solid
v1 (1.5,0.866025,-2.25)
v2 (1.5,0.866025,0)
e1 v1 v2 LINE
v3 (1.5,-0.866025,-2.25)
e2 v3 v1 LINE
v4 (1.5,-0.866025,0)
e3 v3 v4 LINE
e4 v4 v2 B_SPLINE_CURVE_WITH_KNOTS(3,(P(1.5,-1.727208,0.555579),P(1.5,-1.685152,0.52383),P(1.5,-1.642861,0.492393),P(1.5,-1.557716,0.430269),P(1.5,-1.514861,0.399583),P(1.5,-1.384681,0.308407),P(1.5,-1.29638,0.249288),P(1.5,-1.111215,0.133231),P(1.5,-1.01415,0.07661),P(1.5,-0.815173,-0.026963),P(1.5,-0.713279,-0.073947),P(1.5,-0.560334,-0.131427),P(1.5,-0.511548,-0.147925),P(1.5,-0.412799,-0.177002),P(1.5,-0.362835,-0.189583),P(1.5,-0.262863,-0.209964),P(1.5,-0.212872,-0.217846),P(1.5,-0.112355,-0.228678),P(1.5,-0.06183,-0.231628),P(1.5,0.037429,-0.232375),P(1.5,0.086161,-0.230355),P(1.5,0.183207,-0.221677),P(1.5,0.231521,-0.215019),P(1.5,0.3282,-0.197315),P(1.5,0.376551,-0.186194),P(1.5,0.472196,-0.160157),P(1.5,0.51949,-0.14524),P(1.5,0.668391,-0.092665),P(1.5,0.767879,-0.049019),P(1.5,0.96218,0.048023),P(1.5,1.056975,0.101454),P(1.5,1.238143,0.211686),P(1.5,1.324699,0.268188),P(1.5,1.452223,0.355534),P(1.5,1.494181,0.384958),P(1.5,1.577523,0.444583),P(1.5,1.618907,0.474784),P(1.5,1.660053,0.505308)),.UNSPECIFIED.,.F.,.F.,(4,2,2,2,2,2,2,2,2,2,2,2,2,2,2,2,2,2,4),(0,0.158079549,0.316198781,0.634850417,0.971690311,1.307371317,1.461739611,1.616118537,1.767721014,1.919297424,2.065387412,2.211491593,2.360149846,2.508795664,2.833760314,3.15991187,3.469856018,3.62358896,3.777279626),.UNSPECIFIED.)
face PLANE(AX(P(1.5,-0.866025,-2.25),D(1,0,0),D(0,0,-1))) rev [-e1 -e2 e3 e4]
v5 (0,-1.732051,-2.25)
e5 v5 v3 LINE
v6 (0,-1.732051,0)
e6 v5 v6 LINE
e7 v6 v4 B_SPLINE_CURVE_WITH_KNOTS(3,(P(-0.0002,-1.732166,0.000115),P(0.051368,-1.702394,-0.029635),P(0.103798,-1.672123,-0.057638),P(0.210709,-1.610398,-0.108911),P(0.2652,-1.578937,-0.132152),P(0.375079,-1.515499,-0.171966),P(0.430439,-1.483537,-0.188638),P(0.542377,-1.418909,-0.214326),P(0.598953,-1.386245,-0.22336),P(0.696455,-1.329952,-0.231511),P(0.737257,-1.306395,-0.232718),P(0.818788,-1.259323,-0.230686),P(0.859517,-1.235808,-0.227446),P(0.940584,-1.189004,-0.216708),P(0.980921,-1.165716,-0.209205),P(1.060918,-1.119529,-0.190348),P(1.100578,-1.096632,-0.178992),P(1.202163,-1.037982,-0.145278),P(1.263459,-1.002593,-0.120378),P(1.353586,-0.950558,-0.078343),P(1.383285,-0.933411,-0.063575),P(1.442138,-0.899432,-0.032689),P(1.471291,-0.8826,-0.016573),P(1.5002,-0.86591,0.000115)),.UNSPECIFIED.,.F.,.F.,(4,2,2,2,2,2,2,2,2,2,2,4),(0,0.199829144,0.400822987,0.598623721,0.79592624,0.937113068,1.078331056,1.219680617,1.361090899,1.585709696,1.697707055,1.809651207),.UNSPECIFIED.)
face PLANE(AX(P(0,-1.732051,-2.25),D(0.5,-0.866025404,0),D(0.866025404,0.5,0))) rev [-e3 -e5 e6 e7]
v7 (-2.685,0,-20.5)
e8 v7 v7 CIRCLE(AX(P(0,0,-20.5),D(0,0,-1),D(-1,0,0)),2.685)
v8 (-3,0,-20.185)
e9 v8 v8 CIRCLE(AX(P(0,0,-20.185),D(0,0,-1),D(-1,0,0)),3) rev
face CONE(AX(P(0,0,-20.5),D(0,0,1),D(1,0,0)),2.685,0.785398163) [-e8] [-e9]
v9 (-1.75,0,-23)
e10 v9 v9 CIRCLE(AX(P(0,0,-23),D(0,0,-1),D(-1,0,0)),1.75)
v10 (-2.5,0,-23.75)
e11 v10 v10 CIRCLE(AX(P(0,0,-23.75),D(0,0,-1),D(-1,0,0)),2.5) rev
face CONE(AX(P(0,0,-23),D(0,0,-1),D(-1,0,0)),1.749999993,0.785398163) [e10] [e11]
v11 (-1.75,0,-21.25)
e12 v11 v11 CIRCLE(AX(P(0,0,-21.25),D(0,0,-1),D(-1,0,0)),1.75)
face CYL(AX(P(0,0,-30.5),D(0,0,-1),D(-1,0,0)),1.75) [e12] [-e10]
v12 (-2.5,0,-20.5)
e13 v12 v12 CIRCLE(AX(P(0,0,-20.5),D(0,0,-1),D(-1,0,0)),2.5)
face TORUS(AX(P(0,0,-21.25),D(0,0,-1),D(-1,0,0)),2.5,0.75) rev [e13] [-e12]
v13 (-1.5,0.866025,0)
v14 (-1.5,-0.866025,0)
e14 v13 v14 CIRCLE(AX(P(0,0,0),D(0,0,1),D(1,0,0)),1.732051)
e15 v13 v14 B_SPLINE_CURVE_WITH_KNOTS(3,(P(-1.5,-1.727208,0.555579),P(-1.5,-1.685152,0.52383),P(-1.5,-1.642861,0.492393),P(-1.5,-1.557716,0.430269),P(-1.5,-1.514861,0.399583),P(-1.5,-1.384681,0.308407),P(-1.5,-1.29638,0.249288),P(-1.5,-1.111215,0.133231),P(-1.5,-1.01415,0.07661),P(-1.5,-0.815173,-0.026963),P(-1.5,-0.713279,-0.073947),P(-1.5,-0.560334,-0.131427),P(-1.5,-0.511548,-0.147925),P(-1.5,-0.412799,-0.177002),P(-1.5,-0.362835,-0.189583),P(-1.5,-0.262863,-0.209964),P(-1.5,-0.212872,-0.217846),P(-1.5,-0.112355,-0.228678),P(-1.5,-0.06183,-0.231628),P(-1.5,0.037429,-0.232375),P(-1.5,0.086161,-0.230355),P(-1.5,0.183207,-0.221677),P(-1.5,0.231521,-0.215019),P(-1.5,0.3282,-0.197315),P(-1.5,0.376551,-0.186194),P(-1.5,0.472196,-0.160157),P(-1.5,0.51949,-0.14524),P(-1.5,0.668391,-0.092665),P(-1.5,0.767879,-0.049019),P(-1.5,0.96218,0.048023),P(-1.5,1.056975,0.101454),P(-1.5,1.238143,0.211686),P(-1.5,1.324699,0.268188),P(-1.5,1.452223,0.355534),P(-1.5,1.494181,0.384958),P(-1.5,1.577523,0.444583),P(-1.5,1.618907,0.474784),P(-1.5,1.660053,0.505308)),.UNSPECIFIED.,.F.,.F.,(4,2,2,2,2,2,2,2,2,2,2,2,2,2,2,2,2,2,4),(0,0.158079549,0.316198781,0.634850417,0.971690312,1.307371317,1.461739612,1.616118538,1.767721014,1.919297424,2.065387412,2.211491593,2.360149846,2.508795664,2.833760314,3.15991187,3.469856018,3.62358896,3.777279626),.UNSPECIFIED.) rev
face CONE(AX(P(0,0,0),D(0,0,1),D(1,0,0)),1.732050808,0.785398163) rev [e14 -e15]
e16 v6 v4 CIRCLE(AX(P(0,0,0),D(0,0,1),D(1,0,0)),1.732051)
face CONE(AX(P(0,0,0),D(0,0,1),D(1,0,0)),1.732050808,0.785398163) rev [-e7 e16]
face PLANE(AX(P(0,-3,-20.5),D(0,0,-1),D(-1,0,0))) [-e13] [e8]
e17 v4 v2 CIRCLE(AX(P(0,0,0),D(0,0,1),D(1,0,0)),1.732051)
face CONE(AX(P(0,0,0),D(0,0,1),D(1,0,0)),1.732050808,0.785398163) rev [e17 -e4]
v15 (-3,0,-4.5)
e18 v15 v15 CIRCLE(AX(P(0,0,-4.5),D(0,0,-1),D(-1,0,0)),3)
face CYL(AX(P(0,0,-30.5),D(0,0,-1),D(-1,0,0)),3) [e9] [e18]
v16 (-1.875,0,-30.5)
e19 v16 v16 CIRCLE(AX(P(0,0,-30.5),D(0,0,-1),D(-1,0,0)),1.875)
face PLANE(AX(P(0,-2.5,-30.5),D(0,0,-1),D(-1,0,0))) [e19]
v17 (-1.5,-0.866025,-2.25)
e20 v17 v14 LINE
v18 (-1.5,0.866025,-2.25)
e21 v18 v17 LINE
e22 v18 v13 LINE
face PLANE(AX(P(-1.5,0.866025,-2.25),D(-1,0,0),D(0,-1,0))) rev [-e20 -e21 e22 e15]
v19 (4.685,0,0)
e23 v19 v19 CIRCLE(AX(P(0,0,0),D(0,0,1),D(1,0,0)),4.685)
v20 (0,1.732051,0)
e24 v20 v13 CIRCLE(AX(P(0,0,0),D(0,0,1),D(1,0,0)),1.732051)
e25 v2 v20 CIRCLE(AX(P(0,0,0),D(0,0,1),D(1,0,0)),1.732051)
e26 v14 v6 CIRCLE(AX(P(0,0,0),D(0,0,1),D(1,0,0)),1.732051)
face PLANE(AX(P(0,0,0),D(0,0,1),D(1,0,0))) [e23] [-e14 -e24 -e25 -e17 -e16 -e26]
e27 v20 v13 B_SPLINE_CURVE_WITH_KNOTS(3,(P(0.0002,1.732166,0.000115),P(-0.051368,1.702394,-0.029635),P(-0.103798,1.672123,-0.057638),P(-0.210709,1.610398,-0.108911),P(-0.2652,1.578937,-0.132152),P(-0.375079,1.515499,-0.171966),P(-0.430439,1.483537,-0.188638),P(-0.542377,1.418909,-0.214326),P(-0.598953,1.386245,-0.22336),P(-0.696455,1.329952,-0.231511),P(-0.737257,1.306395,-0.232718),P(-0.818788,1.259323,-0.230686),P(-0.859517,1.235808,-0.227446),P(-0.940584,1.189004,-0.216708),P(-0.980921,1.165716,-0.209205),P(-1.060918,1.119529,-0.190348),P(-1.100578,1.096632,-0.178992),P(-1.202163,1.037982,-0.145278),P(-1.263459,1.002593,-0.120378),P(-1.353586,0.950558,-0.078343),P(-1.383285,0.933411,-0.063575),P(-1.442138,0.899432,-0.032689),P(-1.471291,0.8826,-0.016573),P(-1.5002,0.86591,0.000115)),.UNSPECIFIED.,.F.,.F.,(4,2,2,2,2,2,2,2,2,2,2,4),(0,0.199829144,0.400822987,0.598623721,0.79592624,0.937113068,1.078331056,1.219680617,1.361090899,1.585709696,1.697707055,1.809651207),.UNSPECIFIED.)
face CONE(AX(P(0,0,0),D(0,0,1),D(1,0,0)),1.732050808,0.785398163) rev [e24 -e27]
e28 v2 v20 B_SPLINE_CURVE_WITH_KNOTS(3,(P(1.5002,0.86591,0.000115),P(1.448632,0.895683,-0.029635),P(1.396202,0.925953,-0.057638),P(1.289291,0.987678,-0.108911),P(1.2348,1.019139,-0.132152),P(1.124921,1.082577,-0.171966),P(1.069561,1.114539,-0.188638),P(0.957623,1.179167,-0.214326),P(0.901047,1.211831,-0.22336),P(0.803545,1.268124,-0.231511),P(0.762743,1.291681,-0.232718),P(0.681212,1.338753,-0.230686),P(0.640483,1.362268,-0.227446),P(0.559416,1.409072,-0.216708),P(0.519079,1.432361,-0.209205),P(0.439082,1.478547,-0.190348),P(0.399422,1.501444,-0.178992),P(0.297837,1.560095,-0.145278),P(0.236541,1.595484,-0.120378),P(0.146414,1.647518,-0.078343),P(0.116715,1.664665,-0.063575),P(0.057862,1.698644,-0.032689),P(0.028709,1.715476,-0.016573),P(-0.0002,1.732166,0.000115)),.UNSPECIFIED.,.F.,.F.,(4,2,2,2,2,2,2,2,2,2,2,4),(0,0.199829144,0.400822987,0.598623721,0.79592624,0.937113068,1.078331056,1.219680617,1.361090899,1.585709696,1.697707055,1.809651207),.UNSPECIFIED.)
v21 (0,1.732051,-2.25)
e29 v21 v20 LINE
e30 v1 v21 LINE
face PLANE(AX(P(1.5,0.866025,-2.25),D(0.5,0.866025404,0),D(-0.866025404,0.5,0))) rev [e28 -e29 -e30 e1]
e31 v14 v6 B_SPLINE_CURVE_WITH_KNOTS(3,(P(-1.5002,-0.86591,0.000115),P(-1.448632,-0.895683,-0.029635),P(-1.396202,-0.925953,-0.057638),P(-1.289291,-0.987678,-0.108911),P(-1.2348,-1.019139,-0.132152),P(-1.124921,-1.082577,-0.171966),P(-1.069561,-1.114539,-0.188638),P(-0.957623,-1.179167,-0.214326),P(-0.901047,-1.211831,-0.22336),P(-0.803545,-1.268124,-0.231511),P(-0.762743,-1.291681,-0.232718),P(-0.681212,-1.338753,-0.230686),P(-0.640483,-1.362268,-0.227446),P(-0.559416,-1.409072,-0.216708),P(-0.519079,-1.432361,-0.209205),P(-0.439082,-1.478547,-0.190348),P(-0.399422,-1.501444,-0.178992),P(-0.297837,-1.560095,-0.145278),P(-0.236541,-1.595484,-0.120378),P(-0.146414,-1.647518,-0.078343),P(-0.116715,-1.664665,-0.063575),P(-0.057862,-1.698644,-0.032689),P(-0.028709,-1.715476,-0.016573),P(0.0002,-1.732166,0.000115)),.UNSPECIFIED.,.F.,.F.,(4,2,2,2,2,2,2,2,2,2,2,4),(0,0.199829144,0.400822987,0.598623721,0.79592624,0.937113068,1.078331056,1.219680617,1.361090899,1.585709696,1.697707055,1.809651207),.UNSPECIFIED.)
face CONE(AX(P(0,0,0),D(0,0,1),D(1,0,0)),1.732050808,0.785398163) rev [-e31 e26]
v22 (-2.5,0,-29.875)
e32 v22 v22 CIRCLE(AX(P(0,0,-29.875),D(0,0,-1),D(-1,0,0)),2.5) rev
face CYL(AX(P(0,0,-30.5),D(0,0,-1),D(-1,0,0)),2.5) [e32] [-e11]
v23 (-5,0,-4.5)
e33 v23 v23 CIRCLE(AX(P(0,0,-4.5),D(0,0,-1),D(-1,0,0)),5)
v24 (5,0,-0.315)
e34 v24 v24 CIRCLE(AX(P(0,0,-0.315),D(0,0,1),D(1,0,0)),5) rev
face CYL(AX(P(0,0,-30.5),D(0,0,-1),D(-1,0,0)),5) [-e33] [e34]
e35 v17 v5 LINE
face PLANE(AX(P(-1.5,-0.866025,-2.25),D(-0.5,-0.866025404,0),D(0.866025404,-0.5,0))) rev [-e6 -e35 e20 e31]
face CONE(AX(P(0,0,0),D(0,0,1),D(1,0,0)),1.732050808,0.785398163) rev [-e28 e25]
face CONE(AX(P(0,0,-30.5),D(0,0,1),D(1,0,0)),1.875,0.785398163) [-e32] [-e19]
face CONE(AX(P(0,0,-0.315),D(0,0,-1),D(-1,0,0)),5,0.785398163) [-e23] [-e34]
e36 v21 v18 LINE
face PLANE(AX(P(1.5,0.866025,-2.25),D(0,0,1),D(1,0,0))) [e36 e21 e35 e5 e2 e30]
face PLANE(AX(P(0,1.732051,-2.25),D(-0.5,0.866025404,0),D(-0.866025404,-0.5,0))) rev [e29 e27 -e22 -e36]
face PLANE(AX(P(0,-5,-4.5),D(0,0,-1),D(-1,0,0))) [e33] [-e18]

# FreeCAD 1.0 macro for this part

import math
import FreeCAD as App
import Part
import Sketcher
Q = App.Units.Quantity


def edges_at(feature, points):
    """Names of the edges that pass closest to the given points."""
    edges = feature.Shape.Edges
    near = lambda p: min(range(len(edges)), key=lambda i: edges[i].distToShape(Part.Vertex(*p))[0])
    return sorted({f"Edge{near(p) + 1}" for p in points})

doc = App.newDocument("Part")
body = doc.addObject("PartDesign::Body", "Body")

# Sketch on YZ plane
sketch1 = body.newObject("Sketcher::SketchObject", "Sketch")
sketch1.AttachmentSupport = (doc.getObject("YZ_Plane"), [""])
sketch1.MapMode = "FlatFace"
sketch1.addGeometry([
    Part.LineSegment(App.Vector(5, -4.5, 0), App.Vector(5, 0, 0)),  # 0
    Part.LineSegment(App.Vector(5, 0, 0), App.Vector(0, 0, 0)),  # 1
    Part.LineSegment(App.Vector(0, 0, 0), App.Vector(0, -30.5, 0)),  # 2
    Part.LineSegment(App.Vector(0, -30.5, 0), App.Vector(2.5, -30.5, 0)),  # 3
    Part.LineSegment(App.Vector(2.5, -30.5, 0), App.Vector(2.5, -20.5, 0)),  # 4
    Part.LineSegment(App.Vector(2.5, -20.5, 0), App.Vector(3, -20.5, 0)),  # 5
    Part.LineSegment(App.Vector(3, -20.5, 0), App.Vector(3, -4.5, 0)),  # 6
    Part.LineSegment(App.Vector(3, -4.5, 0), App.Vector(5, -4.5, 0)),  # 7
], False)
sketch1.addConstraint([
    Sketcher.Constraint("Coincident", 0, 2, 1, 1),
    Sketcher.Constraint("Coincident", 1, 2, 2, 1),
    Sketcher.Constraint("Coincident", 2, 2, 3, 1),
    Sketcher.Constraint("Coincident", 3, 2, 4, 1),
    Sketcher.Constraint("Coincident", 4, 2, 5, 1),
    Sketcher.Constraint("Coincident", 5, 2, 6, 1),
    Sketcher.Constraint("Coincident", 6, 2, 7, 1),
    Sketcher.Constraint("Coincident", 7, 2, 0, 1),
    Sketcher.Constraint("Vertical", 0),
    Sketcher.Constraint("Horizontal", 1),
    Sketcher.Constraint("Vertical", 2),
    Sketcher.Constraint("Horizontal", 3),
    Sketcher.Constraint("Vertical", 4),
    Sketcher.Constraint("Horizontal", 5),
    Sketcher.Constraint("Vertical", 6),
    Sketcher.Constraint("Horizontal", 7),
    Sketcher.Constraint("Coincident", 1, 2, -1, 1),
    Sketcher.Constraint("DistanceX", 1, 2, 1, 1, Q("5 mm")),
    Sketcher.Constraint("DistanceX", 7, 1, 7, 2, Q("2 mm")),
    Sketcher.Constraint("DistanceY", 4, 1, 4, 2, Q("10 mm")),
    Sketcher.Constraint("DistanceY", 6, 1, 6, 2, Q("16 mm")),
    Sketcher.Constraint("DistanceX", 3, 1, 3, 2, Q("2.5 mm")),
    Sketcher.Constraint("DistanceY", 0, 1, 0, 2, Q("4.5 mm")),
])
revolution = body.newObject("PartDesign::Revolution", "Revolution")
revolution.Profile = sketch1
revolution.ReferenceAxis = (sketch1, ["V_Axis"])
revolution.Angle = 360

# Sketch on YZ plane
sketch2 = body.newObject("Sketcher::SketchObject", "Sketch001")
sketch2.AttachmentSupport = (doc.getObject("YZ_Plane"), [""])
sketch2.MapMode = "FlatFace"
sketch2.addGeometry([
    Part.LineSegment(App.Vector(3, -24.25, 0), App.Vector(3, -20.5, 0)),  # 0
    Part.LineSegment(App.Vector(3, -20.5, 0), App.Vector(2.5, -20.5, 0)),  # 1
    Part.ArcOfCircle(Part.Circle(App.Vector(2.5, -21.25, 0), App.Vector(0, 0, 1), 0.75), math.radians(90), math.radians(180)),  # 2
    Part.LineSegment(App.Vector(1.75, -21.25, 0), App.Vector(1.75, -23, 0)),  # 3
    Part.LineSegment(App.Vector(1.75, -23, 0), App.Vector(3, -24.25, 0)),  # 4
], False)
sketch2.addConstraint([
    Sketcher.Constraint("Coincident", 0, 2, 1, 1),
    Sketcher.Constraint("Tangent", 1, 2, 2, 1),
    Sketcher.Constraint("Tangent", 2, 2, 3, 1),
    Sketcher.Constraint("Coincident", 3, 2, 4, 1),
    Sketcher.Constraint("Coincident", 4, 2, 0, 1),
    Sketcher.Constraint("Vertical", 0),
    Sketcher.Constraint("Horizontal", 1),
    Sketcher.Constraint("Vertical", 3),
    Sketcher.Constraint("Angle", 4, Q("-45 deg")),
    Sketcher.Constraint("Radius", 2, Q("0.75 mm")),
    Sketcher.Constraint("DistanceX", 1, 2, 1, 1, Q("0.5 mm")),
    Sketcher.Constraint("DistanceX", -1, 1, 0, 2, Q("3 mm")),
    Sketcher.Constraint("DistanceY", 3, 2, -1, 1, Q("23 mm")),
    Sketcher.Constraint("DistanceY", 4, 2, 2, 3, Q("3 mm")),
])
groove = body.newObject("PartDesign::Groove", "Groove")
groove.Profile = sketch2
groove.ReferenceAxis = (sketch2, ["V_Axis"])
groove.Angle = 360
doc.recompute()

chamfer = body.newObject("PartDesign::Chamfer", "Chamfer")
chamfer.Base = (groove, edges_at(groove, [(2.5, 0, -30.5)]))
chamfer.Size = 0.625
doc.recompute()

chamfer2 = body.newObject("PartDesign::Chamfer", "Chamfer001")
chamfer2.Base = (chamfer, edges_at(chamfer, [(3, 0, -20.5), (5, 0, 0)]))
chamfer2.Size = 0.315

# Sketch on XY plane
sketch3 = body.newObject("Sketcher::SketchObject", "Sketch002")
sketch3.AttachmentSupport = (doc.getObject("XY_Plane"), [""])
sketch3.MapMode = "FlatFace"
sketch3.addGeometry([
    Part.LineSegment(App.Vector(1.5, 0.866025, 0), App.Vector(0, 1.732051, 0)),  # 0
    Part.LineSegment(App.Vector(0, 1.732051, 0), App.Vector(-1.5, 0.866025, 0)),  # 1
    Part.LineSegment(App.Vector(-1.5, 0.866025, 0), App.Vector(-1.5, -0.866025, 0)),  # 2
    Part.LineSegment(App.Vector(-1.5, -0.866025, 0), App.Vector(0, -1.732051, 0)),  # 3
    Part.LineSegment(App.Vector(0, -1.732051, 0), App.Vector(1.5, -0.866025, 0)),  # 4
    Part.LineSegment(App.Vector(1.5, -0.866025, 0), App.Vector(1.5, 0.866025, 0)),  # 5
], False)
sketch3.addConstraint([
    Sketcher.Constraint("Coincident", 0, 2, 1, 1),
    Sketcher.Constraint("Coincident", 1, 2, 2, 1),
    Sketcher.Constraint("Coincident", 2, 2, 3, 1),
    Sketcher.Constraint("Coincident", 3, 2, 4, 1),
    Sketcher.Constraint("Coincident", 4, 2, 5, 1),
    Sketcher.Constraint("Coincident", 5, 2, 0, 1),
    Sketcher.Constraint("Vertical", 2),
    Sketcher.Constraint("Vertical", 5),
    Sketcher.Constraint("Symmetric", 0, 2, 3, 2, -1, 1),
    Sketcher.Constraint("Symmetric", 1, 2, 4, 2, -1, 1),
    Sketcher.Constraint("PointOnObject", 0, 2, -2),
    Sketcher.Constraint("Parallel", 0, 3),
    Sketcher.Constraint("Horizontal", 2, 2, 4, 2),
    Sketcher.Constraint("Angle", 0, Q("150 deg")),
    Sketcher.Constraint("DistanceX", 2, 2, 4, 2, Q("3 mm")),
    Sketcher.Constraint("DistanceY", 2, 2, 2, 1, Q("1.732051 mm")),
])
pocket1 = body.newObject("PartDesign::Pocket", "Pocket")
pocket1.Profile = sketch3
pocket1.Length = 2.25

# Sketch on YZ plane
sketch4 = body.newObject("Sketcher::SketchObject", "Sketch003")
sketch4.AttachmentSupport = (doc.getObject("YZ_Plane"), [""])
sketch4.MapMode = "FlatFace"
sketch4.addGeometry([
    Part.LineSegment(App.Vector(0, 0, 0), App.Vector(-1.732051, 0, 0)),
    Part.LineSegment(App.Vector(-1.732051, 0, 0), App.Vector(0, -1.732051, 0)),
    Part.LineSegment(App.Vector(0, -1.732051, 0), App.Vector(0, 0, 0)),
], False)
sketch4.addConstraint([
    Sketcher.Constraint("Coincident", 0, 2, 1, 1),
    Sketcher.Constraint("Coincident", 1, 2, 2, 1),
    Sketcher.Constraint("Coincident", 2, 2, 0, 1),
    Sketcher.Constraint("Horizontal", 0),
    Sketcher.Constraint("Vertical", 2),
    Sketcher.Constraint("Coincident", 2, 2, -1, 1),
    Sketcher.Constraint("Equal", 0, 2),
    Sketcher.Constraint("DistanceX", 0, 2, 0, 1, Q("1.732051 mm")),
])
groove2 = body.newObject("PartDesign::Groove", "Groove001")
groove2.Profile = sketch4
groove2.ReferenceAxis = (sketch4, ["V_Axis"])
groove2.Angle = 360

doc.recompute()
